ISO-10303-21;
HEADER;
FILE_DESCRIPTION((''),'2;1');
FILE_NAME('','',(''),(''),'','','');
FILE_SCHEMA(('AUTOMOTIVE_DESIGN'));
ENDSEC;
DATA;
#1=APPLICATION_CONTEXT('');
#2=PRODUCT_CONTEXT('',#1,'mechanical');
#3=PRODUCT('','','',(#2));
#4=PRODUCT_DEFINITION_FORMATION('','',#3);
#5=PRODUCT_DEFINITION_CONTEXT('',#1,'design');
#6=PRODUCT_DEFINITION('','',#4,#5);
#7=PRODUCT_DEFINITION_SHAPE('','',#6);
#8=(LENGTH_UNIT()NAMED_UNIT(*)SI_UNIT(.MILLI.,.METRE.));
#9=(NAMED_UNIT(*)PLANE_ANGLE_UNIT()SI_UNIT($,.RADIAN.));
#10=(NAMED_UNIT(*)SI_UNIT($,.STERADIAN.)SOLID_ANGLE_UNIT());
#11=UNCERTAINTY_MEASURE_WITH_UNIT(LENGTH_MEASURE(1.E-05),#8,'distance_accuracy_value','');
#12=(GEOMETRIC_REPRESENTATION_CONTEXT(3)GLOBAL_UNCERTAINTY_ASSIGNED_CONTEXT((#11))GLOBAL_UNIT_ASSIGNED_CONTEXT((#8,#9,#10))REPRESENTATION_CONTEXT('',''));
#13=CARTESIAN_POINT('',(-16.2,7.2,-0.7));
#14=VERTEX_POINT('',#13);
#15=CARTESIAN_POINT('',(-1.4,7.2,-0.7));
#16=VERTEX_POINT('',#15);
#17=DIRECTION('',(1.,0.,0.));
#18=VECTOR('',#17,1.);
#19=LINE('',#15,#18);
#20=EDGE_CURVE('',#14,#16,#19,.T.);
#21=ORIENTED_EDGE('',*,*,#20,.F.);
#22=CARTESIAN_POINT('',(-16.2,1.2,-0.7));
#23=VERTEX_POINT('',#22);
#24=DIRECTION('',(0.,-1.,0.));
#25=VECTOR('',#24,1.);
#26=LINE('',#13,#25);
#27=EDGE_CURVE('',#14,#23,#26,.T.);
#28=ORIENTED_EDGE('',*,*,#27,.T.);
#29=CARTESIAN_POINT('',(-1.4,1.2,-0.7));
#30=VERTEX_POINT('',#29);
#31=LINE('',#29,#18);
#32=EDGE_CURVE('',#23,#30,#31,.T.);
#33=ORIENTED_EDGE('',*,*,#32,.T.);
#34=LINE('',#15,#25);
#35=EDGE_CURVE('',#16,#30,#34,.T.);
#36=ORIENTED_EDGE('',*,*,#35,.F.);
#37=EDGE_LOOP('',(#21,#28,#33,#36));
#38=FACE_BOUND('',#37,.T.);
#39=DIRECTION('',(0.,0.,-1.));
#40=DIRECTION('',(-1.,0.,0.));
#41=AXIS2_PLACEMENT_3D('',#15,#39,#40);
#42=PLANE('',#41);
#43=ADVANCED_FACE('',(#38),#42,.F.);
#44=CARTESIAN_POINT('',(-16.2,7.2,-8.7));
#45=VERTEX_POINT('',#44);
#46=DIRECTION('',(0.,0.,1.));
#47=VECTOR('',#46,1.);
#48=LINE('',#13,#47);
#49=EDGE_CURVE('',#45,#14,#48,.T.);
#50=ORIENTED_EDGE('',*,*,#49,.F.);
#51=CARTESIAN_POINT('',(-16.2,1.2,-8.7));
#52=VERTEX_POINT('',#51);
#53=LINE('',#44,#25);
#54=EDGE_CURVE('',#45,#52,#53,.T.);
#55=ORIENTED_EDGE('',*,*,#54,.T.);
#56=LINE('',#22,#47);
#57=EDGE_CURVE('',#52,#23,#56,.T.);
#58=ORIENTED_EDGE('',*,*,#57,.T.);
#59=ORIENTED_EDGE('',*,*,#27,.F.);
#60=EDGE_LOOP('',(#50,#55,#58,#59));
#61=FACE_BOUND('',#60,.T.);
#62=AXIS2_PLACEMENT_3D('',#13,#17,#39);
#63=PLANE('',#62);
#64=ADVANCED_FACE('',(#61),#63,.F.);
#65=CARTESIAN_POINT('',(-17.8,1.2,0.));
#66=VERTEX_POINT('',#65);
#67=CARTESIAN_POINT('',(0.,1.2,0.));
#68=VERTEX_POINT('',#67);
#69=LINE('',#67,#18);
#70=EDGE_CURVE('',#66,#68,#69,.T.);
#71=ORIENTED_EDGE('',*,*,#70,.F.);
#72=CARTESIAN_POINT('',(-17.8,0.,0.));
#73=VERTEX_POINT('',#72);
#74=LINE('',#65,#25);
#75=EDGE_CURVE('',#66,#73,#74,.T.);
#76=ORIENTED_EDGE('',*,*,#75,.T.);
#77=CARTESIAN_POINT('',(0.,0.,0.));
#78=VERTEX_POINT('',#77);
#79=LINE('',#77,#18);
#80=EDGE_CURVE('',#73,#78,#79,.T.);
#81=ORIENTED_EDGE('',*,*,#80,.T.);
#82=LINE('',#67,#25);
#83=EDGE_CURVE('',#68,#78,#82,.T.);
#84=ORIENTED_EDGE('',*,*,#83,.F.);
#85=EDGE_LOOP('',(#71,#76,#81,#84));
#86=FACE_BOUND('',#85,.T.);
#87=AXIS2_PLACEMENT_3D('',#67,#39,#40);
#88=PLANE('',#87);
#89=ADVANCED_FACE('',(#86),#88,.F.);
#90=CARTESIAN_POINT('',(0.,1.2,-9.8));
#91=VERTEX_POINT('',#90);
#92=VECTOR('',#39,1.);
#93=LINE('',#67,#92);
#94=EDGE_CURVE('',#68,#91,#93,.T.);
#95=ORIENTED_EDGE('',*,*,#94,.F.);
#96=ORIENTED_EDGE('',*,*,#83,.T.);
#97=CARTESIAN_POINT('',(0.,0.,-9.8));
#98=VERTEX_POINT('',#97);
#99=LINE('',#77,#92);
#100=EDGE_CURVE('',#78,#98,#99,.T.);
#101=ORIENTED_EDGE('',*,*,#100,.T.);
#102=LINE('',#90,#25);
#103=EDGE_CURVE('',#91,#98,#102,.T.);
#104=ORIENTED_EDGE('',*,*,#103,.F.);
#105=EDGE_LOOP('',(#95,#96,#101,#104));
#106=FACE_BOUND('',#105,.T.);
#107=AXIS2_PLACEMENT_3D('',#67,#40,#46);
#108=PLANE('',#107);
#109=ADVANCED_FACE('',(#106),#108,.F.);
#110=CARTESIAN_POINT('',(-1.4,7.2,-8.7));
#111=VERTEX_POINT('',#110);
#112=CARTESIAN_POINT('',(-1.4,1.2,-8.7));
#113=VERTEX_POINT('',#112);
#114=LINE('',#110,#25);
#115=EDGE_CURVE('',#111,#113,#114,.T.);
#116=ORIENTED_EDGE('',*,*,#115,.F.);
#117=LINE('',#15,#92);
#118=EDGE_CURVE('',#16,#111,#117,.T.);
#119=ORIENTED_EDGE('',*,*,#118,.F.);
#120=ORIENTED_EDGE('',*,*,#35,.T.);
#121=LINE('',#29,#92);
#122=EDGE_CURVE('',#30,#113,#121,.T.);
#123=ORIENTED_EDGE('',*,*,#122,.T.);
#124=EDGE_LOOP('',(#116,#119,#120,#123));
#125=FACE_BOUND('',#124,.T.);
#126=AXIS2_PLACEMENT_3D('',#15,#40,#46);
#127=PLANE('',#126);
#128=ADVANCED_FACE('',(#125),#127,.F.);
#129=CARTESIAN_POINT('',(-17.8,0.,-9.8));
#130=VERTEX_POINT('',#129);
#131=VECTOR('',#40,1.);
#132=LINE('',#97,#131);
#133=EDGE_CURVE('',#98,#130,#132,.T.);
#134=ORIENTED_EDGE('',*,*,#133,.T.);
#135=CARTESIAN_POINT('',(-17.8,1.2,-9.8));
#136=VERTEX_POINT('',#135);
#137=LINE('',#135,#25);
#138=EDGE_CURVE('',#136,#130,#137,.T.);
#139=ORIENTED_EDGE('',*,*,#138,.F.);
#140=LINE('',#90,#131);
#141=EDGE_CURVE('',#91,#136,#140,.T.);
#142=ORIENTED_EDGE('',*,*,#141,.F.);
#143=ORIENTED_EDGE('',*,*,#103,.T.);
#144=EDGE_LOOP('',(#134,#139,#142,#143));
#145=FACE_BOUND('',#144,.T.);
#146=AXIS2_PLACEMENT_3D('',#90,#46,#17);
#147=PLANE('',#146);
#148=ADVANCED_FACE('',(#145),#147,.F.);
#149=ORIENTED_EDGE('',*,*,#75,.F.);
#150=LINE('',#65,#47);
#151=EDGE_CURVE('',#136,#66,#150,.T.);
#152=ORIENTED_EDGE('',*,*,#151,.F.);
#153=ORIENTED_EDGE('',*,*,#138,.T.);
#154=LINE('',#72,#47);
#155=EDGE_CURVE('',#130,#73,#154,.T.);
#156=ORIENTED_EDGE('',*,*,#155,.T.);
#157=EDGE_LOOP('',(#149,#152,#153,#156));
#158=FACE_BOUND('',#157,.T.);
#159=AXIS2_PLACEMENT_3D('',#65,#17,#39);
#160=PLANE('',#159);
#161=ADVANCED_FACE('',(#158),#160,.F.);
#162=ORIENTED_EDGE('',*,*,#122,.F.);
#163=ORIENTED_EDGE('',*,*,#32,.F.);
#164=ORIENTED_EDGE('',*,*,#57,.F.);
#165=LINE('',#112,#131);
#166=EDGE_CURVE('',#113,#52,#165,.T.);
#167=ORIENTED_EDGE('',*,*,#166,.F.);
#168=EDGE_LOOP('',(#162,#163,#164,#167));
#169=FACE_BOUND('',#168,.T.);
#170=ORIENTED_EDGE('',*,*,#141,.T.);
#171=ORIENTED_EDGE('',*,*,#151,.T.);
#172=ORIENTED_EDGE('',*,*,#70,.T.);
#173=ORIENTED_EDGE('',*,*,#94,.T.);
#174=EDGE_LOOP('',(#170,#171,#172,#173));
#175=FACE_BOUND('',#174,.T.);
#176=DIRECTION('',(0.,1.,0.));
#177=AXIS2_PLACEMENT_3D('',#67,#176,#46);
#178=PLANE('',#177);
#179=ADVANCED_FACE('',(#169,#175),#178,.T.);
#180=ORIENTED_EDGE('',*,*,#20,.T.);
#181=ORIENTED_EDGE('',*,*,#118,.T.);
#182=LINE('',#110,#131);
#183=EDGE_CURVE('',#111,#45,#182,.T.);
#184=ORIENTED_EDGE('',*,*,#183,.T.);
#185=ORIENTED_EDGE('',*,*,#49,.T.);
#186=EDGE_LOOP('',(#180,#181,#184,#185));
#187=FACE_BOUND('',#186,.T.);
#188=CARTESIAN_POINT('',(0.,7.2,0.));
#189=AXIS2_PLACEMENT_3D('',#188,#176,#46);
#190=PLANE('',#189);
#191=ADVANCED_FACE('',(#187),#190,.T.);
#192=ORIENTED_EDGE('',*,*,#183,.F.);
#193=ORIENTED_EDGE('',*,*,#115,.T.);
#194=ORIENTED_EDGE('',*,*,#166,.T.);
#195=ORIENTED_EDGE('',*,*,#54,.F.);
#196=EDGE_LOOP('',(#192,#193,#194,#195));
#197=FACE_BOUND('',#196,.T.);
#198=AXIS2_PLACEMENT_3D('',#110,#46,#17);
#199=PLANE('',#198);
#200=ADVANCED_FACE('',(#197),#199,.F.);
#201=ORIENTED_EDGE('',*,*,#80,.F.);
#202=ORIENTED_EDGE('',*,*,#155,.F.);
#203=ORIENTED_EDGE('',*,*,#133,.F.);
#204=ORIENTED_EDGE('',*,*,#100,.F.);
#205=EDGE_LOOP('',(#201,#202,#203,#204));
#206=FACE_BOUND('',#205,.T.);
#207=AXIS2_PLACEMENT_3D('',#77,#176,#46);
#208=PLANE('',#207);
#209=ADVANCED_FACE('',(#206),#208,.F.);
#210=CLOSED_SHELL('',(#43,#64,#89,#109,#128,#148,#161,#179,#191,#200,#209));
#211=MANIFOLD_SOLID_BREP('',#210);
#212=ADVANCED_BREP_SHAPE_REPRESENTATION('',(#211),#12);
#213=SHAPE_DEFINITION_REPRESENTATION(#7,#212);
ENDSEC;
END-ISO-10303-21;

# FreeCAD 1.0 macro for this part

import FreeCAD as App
import Part
import Sketcher

V = App.Vector


def add_polygon(sketch, points):
    """Adds a closed chain of lines whose ends are joined by coincident constraints."""
    first, n = sketch.GeometryCount, len(points)
    for a, b in zip(points, points[1:] + points[:1]):
        sketch.addGeometry(Part.LineSegment(App.Vector(*a, 0), App.Vector(*b, 0)), False)
    for i in range(n):
        sketch.addConstraint(Sketcher.Constraint("Coincident", first + i, 2, first + (i + 1) % n, 1))

doc = App.newDocument("Part")
params = doc.addObject("Spreadsheet::Sheet", "Params")
for row, (alias, value) in enumerate([
    ("sketch1_width", "17.8 mm"),
    ("sketch1_height", "9.8 mm"),
    ("pad1_length", "1.2 mm"),
    ("sketch2_height", "8 mm"),
    ("sketch2_width", "14.8 mm"),
    ("pad2_length", "6 mm"),
], start=1):
    params.set(f"A{row}", alias)
    params.set(f"B{row}", "=" + value)
    params.setAlias(f"B{row}", alias)

body = doc.addObject("PartDesign::Body", "Body")

# Sketch on XZ plane
sketch1 = body.newObject("Sketcher::SketchObject", "Sketch")
sketch1.AttachmentSupport = (doc.getObject("XZ_Plane"), [""])
sketch1.MapMode = "FlatFace"
add_polygon(sketch1, [(-17.8, -9.8), (-17.8, 0), (0, 0), (0, -9.8)])  # lines 0-3
sketch1.addConstraint(Sketcher.Constraint("Vertical", 0))
sketch1.addConstraint(Sketcher.Constraint("Horizontal", 1))
sketch1.addConstraint(Sketcher.Constraint("Vertical", 2))
sketch1.addConstraint(Sketcher.Constraint("Horizontal", 3))
sketch1.addConstraint(Sketcher.Constraint("Coincident", 1, 2, -1, 1))
sketch1.addConstraint(Sketcher.Constraint("DistanceX", 1, 1, 1, 2, 17.8))
sketch1.addConstraint(Sketcher.Constraint("DistanceY", 0, 1, 0, 2, 9.8))
sketch1.setExpression("Constraints[9]", "Params.sketch1_width")
sketch1.setExpression("Constraints[10]", "Params.sketch1_height")
pad1 = body.newObject("PartDesign::Pad", "Pad")
pad1.Profile = sketch1
pad1.setExpression("Length", "Params.pad1_length")
pad1.Reversed = True

# Sketch on XZ plane
sketch2 = body.newObject("Sketcher::SketchObject", "Sketch001")
sketch2.AttachmentSupport = (doc.getObject("XZ_Plane"), [""])
sketch2.MapMode = "FlatFace"
sketch2.AttachmentOffset = App.Placement(V(0, 0, -1.2), App.Rotation())
add_polygon(sketch2, [(-16.2, -8.7), (-16.2, -0.7), (-1.4, -0.7), (-1.4, -8.7)])  # lines 0-3
sketch2.addConstraint(Sketcher.Constraint("Vertical", 0))
sketch2.addConstraint(Sketcher.Constraint("Horizontal", 1))
sketch2.addConstraint(Sketcher.Constraint("Vertical", 2))
sketch2.addConstraint(Sketcher.Constraint("Horizontal", 3))
sketch2.addConstraint(Sketcher.Constraint("DistanceY", 0, 1, 0, 2, 8.0))
sketch2.addConstraint(Sketcher.Constraint("DistanceX", 1, 1, 1, 2, 14.8))
sketch2.addConstraint(Sketcher.Constraint("DistanceX", 0, 2, -1, 1, 16.2))
sketch2.addConstraint(Sketcher.Constraint("DistanceY", 0, 2, -1, 1, 0.7))
sketch2.setExpression("Constraints[8]", "Params.sketch2_height")
sketch2.setExpression("Constraints[9]", "Params.sketch2_width")
pad2 = body.newObject("PartDesign::Pad", "Pad001")
pad2.Profile = sketch2
pad2.setExpression("Length", "Params.pad2_length")
pad2.Reversed = True

doc.recompute()
